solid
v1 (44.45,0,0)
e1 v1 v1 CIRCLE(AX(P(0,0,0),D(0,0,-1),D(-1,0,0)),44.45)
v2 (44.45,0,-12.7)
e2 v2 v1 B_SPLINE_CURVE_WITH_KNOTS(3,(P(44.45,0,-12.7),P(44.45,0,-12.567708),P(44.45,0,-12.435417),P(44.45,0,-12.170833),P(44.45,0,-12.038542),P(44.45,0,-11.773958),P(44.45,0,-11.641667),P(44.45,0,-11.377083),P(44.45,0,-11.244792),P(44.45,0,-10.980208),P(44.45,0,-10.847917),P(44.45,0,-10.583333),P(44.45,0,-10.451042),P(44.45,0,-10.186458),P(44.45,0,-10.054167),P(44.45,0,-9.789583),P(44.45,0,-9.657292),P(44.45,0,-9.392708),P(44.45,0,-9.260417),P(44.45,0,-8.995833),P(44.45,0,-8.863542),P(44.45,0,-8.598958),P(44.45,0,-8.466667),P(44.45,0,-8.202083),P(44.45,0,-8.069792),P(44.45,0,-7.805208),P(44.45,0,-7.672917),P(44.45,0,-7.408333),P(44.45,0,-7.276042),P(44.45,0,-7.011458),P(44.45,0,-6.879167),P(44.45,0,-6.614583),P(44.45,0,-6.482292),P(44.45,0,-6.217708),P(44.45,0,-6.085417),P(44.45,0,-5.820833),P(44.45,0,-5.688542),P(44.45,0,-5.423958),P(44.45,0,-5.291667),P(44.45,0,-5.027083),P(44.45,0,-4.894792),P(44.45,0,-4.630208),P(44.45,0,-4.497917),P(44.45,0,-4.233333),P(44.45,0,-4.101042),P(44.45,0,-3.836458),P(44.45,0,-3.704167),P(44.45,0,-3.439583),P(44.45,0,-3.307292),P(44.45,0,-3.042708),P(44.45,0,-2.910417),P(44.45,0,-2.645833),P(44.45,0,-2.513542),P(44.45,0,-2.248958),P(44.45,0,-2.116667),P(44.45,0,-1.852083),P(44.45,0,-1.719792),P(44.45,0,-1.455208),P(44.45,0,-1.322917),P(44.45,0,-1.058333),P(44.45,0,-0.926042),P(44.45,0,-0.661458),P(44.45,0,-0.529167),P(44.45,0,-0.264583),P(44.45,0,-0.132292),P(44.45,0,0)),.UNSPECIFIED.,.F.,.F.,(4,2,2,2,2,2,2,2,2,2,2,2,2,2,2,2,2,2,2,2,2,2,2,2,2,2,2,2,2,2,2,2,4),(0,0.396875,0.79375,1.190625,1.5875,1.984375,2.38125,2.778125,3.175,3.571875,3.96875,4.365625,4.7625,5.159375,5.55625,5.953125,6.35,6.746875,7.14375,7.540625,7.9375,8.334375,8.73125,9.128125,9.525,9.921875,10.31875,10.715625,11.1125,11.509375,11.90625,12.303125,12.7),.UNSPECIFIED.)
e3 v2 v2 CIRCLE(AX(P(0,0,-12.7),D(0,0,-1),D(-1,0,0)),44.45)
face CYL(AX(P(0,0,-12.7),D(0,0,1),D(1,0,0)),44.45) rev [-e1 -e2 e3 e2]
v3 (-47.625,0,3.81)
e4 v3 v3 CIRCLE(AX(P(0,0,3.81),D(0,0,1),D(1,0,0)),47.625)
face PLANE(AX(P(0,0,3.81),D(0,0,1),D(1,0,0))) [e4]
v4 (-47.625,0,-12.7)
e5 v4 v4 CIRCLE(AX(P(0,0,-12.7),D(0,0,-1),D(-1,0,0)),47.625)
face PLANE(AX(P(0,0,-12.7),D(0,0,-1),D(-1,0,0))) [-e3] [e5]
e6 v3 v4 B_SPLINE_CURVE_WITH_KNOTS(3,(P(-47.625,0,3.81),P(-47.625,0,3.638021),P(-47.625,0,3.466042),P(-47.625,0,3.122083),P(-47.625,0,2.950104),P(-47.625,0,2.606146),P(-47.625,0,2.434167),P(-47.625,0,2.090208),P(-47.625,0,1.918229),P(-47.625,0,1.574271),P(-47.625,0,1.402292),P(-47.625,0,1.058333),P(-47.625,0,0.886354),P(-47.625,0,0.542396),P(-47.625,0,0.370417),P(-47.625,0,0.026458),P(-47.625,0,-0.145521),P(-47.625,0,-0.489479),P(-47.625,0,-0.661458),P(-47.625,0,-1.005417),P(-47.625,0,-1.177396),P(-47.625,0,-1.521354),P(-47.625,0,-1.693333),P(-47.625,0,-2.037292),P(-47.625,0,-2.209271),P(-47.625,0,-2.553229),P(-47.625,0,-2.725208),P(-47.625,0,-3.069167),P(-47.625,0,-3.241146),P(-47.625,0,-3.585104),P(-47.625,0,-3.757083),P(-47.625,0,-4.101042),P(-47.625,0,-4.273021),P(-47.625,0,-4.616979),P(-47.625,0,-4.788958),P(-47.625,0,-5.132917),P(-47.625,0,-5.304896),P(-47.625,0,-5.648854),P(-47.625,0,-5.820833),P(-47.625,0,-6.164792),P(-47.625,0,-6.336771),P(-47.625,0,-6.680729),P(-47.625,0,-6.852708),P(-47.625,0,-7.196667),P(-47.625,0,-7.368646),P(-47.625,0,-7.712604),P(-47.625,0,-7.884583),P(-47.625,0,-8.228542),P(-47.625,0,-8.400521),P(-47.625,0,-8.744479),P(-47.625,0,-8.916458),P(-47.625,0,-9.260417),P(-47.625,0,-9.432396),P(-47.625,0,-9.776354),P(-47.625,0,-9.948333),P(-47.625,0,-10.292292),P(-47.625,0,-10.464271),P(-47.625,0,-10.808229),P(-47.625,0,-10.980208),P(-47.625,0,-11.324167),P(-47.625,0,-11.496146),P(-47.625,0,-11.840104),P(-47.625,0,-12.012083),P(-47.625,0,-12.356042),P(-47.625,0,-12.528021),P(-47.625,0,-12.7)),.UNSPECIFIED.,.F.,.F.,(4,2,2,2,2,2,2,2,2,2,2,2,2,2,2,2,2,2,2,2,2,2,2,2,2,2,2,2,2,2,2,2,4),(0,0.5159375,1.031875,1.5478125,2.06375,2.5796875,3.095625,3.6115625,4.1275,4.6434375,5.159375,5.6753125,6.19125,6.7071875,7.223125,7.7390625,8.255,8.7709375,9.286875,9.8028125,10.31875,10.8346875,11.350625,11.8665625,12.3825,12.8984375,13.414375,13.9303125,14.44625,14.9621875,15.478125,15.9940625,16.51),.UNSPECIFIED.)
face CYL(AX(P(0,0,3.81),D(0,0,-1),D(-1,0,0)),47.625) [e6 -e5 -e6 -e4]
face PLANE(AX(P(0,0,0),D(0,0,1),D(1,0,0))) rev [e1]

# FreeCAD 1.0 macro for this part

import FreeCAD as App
import Part
import Sketcher
Q = App.Units.Quantity

doc = App.newDocument("Part")
body = doc.addObject("PartDesign::Body", "Body")

sketch1 = body.newObject("Sketcher::SketchObject", "Sketch")
sketch1.AttachmentSupport = (doc.getObject("XY_Plane"), [""])
sketch1.MapMode = "FlatFace"
sketch1.addGeometry(Part.Circle(App.Vector(0, 0, 0), App.Vector(0, 0, 1), 47.625), False)
sketch1.addConstraint(Sketcher.Constraint("Coincident", 0, 3, -1, 1))
sketch1.addConstraint(Sketcher.Constraint("Diameter", 0, Q("3.75 in")))
pad1 = body.newObject("PartDesign::Pad", "Pad")
pad1.Profile = sketch1
pad1.Length = Q("0.15 in")

sketch2 = body.newObject("Sketcher::SketchObject", "Sketch001")
sketch2.AttachmentSupport = (doc.getObject("XY_Plane"), [""])
sketch2.MapMode = "FlatFace"
sketch2.AttachmentOffset = App.Placement(App.Vector(0, 0, -0.5 * 25.4), App.Rotation())
sketch2.addGeometry(Part.Circle(App.Vector(0, 0, 0), App.Vector(0, 0, 1), 47.625), False)
sketch2.addGeometry(Part.Circle(App.Vector(0, 0, 0), App.Vector(0, 0, 1), 44.45), False)
sketch2.addConstraint(Sketcher.Constraint("Coincident", 0, 3, -1, 1))
sketch2.addConstraint(Sketcher.Constraint("Coincident", 1, 3, -1, 1))
sketch2.addConstraint(Sketcher.Constraint("Diameter", 1, Q("3.5 in")))
sketch2.addConstraint(Sketcher.Constraint("Diameter", 0, Q("3.75 in")))
pad2 = body.newObject("PartDesign::Pad", "Pad001")
pad2.Profile = sketch2
pad2.Length = Q("0.5 in")

doc.recompute()
